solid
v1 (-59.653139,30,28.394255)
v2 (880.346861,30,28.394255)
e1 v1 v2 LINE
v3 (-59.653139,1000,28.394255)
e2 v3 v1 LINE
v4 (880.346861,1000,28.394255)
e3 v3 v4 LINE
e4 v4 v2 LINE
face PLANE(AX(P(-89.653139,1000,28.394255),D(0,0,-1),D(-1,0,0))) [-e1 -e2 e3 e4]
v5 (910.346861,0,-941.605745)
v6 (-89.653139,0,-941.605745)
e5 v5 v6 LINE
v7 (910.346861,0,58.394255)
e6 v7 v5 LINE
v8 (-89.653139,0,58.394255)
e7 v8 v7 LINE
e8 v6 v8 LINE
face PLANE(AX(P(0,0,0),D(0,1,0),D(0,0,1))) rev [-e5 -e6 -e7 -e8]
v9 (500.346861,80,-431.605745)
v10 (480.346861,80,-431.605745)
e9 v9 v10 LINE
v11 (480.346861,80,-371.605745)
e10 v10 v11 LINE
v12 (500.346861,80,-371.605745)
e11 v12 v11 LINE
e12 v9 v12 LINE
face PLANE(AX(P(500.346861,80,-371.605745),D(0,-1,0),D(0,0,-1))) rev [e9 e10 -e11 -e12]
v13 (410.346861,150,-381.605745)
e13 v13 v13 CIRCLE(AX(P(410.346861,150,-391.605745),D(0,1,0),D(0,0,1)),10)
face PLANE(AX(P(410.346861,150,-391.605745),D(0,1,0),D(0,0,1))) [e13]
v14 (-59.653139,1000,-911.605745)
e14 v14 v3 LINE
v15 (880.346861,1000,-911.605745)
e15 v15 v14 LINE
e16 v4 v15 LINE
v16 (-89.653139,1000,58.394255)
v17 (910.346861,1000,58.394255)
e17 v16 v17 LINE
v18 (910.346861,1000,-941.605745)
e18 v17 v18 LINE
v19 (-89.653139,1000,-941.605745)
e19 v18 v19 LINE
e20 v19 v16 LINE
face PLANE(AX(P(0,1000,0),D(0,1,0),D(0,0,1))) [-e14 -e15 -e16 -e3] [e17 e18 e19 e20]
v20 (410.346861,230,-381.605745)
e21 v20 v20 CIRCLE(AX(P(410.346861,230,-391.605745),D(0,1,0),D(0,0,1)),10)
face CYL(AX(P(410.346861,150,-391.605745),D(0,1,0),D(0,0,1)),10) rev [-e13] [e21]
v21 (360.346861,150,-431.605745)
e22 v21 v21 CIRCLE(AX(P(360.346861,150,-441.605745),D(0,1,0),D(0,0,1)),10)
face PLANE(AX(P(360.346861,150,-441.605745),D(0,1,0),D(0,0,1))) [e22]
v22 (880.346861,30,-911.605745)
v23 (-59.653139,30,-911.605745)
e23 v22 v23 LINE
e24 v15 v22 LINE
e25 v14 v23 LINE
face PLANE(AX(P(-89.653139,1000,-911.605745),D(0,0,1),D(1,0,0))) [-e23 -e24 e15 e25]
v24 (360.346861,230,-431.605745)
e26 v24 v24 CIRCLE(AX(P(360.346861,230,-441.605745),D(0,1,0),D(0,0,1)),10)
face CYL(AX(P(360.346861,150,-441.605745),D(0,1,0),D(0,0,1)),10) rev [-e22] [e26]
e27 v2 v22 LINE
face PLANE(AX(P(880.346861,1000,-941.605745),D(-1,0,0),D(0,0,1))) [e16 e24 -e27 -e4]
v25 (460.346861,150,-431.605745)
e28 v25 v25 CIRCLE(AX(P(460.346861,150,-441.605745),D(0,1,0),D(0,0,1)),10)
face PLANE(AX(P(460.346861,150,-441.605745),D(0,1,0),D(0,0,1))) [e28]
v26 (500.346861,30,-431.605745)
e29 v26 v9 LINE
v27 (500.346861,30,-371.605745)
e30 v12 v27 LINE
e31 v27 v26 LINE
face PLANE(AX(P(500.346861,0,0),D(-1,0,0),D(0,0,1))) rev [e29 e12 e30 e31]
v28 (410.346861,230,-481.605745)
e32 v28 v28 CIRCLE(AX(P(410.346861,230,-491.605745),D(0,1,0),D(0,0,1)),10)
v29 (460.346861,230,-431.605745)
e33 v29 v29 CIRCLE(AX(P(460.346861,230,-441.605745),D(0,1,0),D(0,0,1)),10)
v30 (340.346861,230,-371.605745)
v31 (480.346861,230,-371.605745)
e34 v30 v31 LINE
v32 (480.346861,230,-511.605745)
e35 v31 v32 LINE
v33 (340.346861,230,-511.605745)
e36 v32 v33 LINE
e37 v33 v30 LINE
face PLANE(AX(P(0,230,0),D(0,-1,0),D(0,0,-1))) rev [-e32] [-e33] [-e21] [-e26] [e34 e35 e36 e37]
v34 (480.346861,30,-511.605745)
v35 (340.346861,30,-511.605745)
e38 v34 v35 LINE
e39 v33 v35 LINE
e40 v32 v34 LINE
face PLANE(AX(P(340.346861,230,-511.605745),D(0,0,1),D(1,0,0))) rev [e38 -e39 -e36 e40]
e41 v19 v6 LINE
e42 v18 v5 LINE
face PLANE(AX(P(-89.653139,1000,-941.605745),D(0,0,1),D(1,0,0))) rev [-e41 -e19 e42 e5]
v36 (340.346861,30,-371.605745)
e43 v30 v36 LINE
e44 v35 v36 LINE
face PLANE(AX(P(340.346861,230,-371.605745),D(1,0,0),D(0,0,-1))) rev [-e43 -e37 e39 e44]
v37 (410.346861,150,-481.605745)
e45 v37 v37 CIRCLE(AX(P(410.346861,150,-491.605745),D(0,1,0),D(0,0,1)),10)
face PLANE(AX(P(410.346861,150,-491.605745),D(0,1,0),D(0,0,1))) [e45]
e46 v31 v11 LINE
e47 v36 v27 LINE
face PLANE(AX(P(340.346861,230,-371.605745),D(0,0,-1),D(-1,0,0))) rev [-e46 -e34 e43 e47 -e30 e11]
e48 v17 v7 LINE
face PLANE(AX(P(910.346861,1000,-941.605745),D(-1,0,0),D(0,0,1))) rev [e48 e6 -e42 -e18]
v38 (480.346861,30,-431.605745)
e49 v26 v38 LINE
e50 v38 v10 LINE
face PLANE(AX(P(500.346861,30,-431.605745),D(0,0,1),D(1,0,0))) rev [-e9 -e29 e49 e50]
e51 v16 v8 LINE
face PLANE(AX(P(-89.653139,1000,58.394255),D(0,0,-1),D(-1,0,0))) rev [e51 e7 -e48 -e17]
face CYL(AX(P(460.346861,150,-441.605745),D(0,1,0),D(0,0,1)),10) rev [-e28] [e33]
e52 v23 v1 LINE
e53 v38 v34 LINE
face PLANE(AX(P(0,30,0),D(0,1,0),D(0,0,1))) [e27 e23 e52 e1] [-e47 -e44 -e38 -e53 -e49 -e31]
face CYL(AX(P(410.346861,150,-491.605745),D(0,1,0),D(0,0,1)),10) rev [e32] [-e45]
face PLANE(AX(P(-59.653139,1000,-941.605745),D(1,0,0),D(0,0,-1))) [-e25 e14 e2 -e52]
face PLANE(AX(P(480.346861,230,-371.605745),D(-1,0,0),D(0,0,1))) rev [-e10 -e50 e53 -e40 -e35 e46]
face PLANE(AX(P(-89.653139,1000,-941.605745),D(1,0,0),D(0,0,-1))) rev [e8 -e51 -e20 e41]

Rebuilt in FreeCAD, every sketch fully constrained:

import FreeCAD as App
import Part
import Sketcher

V = App.Vector


def faces_at(feature, points):
    """Names of the faces that lie closest to the given points."""
    faces = feature.Shape.Faces
    near = lambda p: min(range(len(faces)), key=lambda i: faces[i].distToShape(Part.Vertex(*p))[0])
    return sorted({f"Face{near(p) + 1}" for p in points})

doc = App.newDocument("Part")
params = doc.addObject("Spreadsheet::Sheet", "Params")
for row, (alias, value) in enumerate([
    ("sketch1_width", "1000 mm"),
    ("pad1_length", "1000 mm"),
    ("thickness_wall", "30 mm"),
    ("sketch2_width", "140 mm"),
    ("pad2_length", "200 mm"),
    ("sketch3_width", "50 mm"),
    ("sketch3_height", "60 mm"),
    ("pad3_length", "20 mm"),
    ("sketch4_diameter", "20 mm"),
    ("pocket1_length", "80 mm"),
], start=1):
    params.set(f"A{row}", alias)
    params.set(f"B{row}", "=" + value)
    params.setAlias(f"B{row}", alias)

body = doc.addObject("PartDesign::Body", "Body")

# Sketch on XZ plane
sketch1 = body.newObject("Sketcher::SketchObject", "Sketch")
sketch1.AttachmentSupport = (doc.getObject("XZ_Plane"), [""])
sketch1.MapMode = "FlatFace"
sketch1.addGeometry(Part.LineSegment(V(-90, -942, 0), V(-90, 58, 0)), False)
sketch1.addGeometry(Part.LineSegment(V(-90, 58, 0), V(910, 58, 0)), False)
sketch1.addGeometry(Part.LineSegment(V(910, 58, 0), V(910, -942, 0)), False)
sketch1.addGeometry(Part.LineSegment(V(910, -942, 0), V(-90, -942, 0)), False)
sketch1.addConstraint(Sketcher.Constraint("Coincident", 0, 2, 1, 1))
sketch1.addConstraint(Sketcher.Constraint("Coincident", 1, 2, 2, 1))
sketch1.addConstraint(Sketcher.Constraint("Coincident", 2, 2, 3, 1))
sketch1.addConstraint(Sketcher.Constraint("Coincident", 3, 2, 0, 1))
sketch1.addConstraint(Sketcher.Constraint("Vertical", 0))
sketch1.addConstraint(Sketcher.Constraint("Horizontal", 1))
sketch1.addConstraint(Sketcher.Constraint("Vertical", 2))
sketch1.addConstraint(Sketcher.Constraint("Horizontal", 3))
sketch1.addConstraint(Sketcher.Constraint("Equal", 3, 0))
sketch1.addConstraint(Sketcher.Constraint("DistanceX", 1, 1, 1, 2, 1000.0))
sketch1.addConstraint(Sketcher.Constraint("DistanceX", 0, 2, -1, 1, 89.653139))
sketch1.addConstraint(Sketcher.Constraint("DistanceY", -1, 1, 0, 2, 58.394255))
sketch1.setExpression("Constraints[9]", "Params.sketch1_width")
pad1 = body.newObject("PartDesign::Pad", "Pad")
pad1.Profile = sketch1
pad1.setExpression("Length", "Params.pad1_length")
pad1.Reversed = True
doc.recompute()

thickness = body.newObject("PartDesign::Thickness", "Thickness")
thickness.Base = (pad1, faces_at(pad1, [(410.347, 1000, -441.606)]))
thickness.setExpression("Value", "Params.thickness_wall")
thickness.Reversed = True
thickness.Join = "Intersection"

# Sketch on XZ plane
sketch2 = body.newObject("Sketcher::SketchObject", "Sketch001")
sketch2.AttachmentSupport = (doc.getObject("XZ_Plane"), [""])
sketch2.MapMode = "FlatFace"
sketch2.AttachmentOffset = App.Placement(V(0, 0, -30), App.Rotation())
sketch2.addGeometry(Part.LineSegment(V(340, -512, 0), V(340, -372, 0)), False)
sketch2.addGeometry(Part.LineSegment(V(340, -372, 0), V(480, -372, 0)), False)
sketch2.addGeometry(Part.LineSegment(V(480, -372, 0), V(480, -512, 0)), False)
sketch2.addGeometry(Part.LineSegment(V(480, -512, 0), V(340, -512, 0)), False)
sketch2.addConstraint(Sketcher.Constraint("Coincident", 0, 2, 1, 1))
sketch2.addConstraint(Sketcher.Constraint("Coincident", 1, 2, 2, 1))
sketch2.addConstraint(Sketcher.Constraint("Coincident", 2, 2, 3, 1))
sketch2.addConstraint(Sketcher.Constraint("Coincident", 3, 2, 0, 1))
sketch2.addConstraint(Sketcher.Constraint("Vertical", 0))
sketch2.addConstraint(Sketcher.Constraint("Horizontal", 1))
sketch2.addConstraint(Sketcher.Constraint("Vertical", 2))
sketch2.addConstraint(Sketcher.Constraint("Horizontal", 3))
sketch2.addConstraint(Sketcher.Constraint("Equal", 3, 0))
sketch2.addConstraint(Sketcher.Constraint("DistanceX", 1, 1, 1, 2, 140.0))
sketch2.addConstraint(Sketcher.Constraint("DistanceX", -1, 1, 0, 2, 340.346861))
sketch2.addConstraint(Sketcher.Constraint("DistanceY", 0, 2, -1, 1, 371.605745))
sketch2.setExpression("Constraints[9]", "Params.sketch2_width")
pad2 = body.newObject("PartDesign::Pad", "Pad001")
pad2.Profile = sketch2
pad2.setExpression("Length", "Params.pad2_length")
pad2.Reversed = True

# Sketch on YZ plane
sketch3 = body.newObject("Sketcher::SketchObject", "Sketch002")
sketch3.AttachmentSupport = (doc.getObject("YZ_Plane"), [""])
sketch3.MapMode = "FlatFace"
sketch3.AttachmentOffset = App.Placement(V(0, 0, 480.346861), App.Rotation())
sketch3.addGeometry(Part.LineSegment(V(80, -372, 0), V(30, -372, 0)), False)
sketch3.addGeometry(Part.LineSegment(V(30, -372, 0), V(30, -432, 0)), False)
sketch3.addGeometry(Part.LineSegment(V(30, -432, 0), V(80, -432, 0)), False)
sketch3.addGeometry(Part.LineSegment(V(80, -432, 0), V(80, -372, 0)), False)
sketch3.addConstraint(Sketcher.Constraint("Coincident", 0, 2, 1, 1))
sketch3.addConstraint(Sketcher.Constraint("Coincident", 1, 2, 2, 1))
sketch3.addConstraint(Sketcher.Constraint("Coincident", 2, 2, 3, 1))
sketch3.addConstraint(Sketcher.Constraint("Coincident", 3, 2, 0, 1))
sketch3.addConstraint(Sketcher.Constraint("Horizontal", 0))
sketch3.addConstraint(Sketcher.Constraint("Vertical", 1))
sketch3.addConstraint(Sketcher.Constraint("Horizontal", 2))
sketch3.addConstraint(Sketcher.Constraint("Vertical", 3))
sketch3.addConstraint(Sketcher.Constraint("DistanceX", 0, 2, 0, 1, 50.0))
sketch3.addConstraint(Sketcher.Constraint("DistanceY", 1, 2, 1, 1, 60.0))
sketch3.addConstraint(Sketcher.Constraint("DistanceX", -1, 1, 0, 2, 30.0))
sketch3.addConstraint(Sketcher.Constraint("DistanceY", 0, 2, -1, 1, 371.605745))
sketch3.setExpression("Constraints[8]", "Params.sketch3_width")
sketch3.setExpression("Constraints[9]", "Params.sketch3_height")
pad3 = body.newObject("PartDesign::Pad", "Pad002")
pad3.Profile = sketch3
pad3.setExpression("Length", "Params.pad3_length")

# Sketch on XZ plane
sketch4 = body.newObject("Sketcher::SketchObject", "Sketch003")
sketch4.AttachmentSupport = (doc.getObject("XZ_Plane"), [""])
sketch4.MapMode = "FlatFace"
sketch4.AttachmentOffset = App.Placement(V(0, 0, -230), App.Rotation())
sketch4.addGeometry(Part.Circle(V(410, -492, 0), V(0, 0, 1), 10), False)
sketch4.addGeometry(Part.Circle(V(360, -442, 0), V(0, 0, 1), 10), False)
sketch4.addGeometry(Part.Circle(V(410, -392, 0), V(0, 0, 1), 10), False)
sketch4.addGeometry(Part.Circle(V(460, -442, 0), V(0, 0, 1), 10), False)
sketch4.addConstraint(Sketcher.Constraint("Equal", 0, 1))
sketch4.addConstraint(Sketcher.Constraint("Equal", 1, 2))
sketch4.addConstraint(Sketcher.Constraint("Equal", 2, 3))
sketch4.addConstraint(Sketcher.Constraint("Horizontal", 1, 3, 3, 3))
sketch4.addConstraint(Sketcher.Constraint("Vertical", 0, 3, 2, 3))
sketch4.addConstraint(Sketcher.Constraint("Diameter", 0, 20.0))
sketch4.addConstraint(Sketcher.Constraint("DistanceX", 1, 3, 0, 3, 50.0))
sketch4.addConstraint(Sketcher.Constraint("DistanceY", 0, 3, 1, 3, 50.0))
sketch4.addConstraint(Sketcher.Constraint("DistanceY", 1, 3, 2, 3, 50.0))
sketch4.addConstraint(Sketcher.Constraint("DistanceX", 0, 3, 3, 3, 50.0))
sketch4.addConstraint(Sketcher.Constraint("DistanceX", -1, 1, 0, 3, 410.346861))
sketch4.addConstraint(Sketcher.Constraint("DistanceY", 0, 3, -1, 1, 491.605745))
sketch4.setExpression("Constraints[5]", "Params.sketch4_diameter")
pocket1 = body.newObject("PartDesign::Pocket", "Pocket")
pocket1.Profile = sketch4
pocket1.setExpression("Length", "Params.pocket1_length")
pocket1.Reversed = True

doc.recompute()
